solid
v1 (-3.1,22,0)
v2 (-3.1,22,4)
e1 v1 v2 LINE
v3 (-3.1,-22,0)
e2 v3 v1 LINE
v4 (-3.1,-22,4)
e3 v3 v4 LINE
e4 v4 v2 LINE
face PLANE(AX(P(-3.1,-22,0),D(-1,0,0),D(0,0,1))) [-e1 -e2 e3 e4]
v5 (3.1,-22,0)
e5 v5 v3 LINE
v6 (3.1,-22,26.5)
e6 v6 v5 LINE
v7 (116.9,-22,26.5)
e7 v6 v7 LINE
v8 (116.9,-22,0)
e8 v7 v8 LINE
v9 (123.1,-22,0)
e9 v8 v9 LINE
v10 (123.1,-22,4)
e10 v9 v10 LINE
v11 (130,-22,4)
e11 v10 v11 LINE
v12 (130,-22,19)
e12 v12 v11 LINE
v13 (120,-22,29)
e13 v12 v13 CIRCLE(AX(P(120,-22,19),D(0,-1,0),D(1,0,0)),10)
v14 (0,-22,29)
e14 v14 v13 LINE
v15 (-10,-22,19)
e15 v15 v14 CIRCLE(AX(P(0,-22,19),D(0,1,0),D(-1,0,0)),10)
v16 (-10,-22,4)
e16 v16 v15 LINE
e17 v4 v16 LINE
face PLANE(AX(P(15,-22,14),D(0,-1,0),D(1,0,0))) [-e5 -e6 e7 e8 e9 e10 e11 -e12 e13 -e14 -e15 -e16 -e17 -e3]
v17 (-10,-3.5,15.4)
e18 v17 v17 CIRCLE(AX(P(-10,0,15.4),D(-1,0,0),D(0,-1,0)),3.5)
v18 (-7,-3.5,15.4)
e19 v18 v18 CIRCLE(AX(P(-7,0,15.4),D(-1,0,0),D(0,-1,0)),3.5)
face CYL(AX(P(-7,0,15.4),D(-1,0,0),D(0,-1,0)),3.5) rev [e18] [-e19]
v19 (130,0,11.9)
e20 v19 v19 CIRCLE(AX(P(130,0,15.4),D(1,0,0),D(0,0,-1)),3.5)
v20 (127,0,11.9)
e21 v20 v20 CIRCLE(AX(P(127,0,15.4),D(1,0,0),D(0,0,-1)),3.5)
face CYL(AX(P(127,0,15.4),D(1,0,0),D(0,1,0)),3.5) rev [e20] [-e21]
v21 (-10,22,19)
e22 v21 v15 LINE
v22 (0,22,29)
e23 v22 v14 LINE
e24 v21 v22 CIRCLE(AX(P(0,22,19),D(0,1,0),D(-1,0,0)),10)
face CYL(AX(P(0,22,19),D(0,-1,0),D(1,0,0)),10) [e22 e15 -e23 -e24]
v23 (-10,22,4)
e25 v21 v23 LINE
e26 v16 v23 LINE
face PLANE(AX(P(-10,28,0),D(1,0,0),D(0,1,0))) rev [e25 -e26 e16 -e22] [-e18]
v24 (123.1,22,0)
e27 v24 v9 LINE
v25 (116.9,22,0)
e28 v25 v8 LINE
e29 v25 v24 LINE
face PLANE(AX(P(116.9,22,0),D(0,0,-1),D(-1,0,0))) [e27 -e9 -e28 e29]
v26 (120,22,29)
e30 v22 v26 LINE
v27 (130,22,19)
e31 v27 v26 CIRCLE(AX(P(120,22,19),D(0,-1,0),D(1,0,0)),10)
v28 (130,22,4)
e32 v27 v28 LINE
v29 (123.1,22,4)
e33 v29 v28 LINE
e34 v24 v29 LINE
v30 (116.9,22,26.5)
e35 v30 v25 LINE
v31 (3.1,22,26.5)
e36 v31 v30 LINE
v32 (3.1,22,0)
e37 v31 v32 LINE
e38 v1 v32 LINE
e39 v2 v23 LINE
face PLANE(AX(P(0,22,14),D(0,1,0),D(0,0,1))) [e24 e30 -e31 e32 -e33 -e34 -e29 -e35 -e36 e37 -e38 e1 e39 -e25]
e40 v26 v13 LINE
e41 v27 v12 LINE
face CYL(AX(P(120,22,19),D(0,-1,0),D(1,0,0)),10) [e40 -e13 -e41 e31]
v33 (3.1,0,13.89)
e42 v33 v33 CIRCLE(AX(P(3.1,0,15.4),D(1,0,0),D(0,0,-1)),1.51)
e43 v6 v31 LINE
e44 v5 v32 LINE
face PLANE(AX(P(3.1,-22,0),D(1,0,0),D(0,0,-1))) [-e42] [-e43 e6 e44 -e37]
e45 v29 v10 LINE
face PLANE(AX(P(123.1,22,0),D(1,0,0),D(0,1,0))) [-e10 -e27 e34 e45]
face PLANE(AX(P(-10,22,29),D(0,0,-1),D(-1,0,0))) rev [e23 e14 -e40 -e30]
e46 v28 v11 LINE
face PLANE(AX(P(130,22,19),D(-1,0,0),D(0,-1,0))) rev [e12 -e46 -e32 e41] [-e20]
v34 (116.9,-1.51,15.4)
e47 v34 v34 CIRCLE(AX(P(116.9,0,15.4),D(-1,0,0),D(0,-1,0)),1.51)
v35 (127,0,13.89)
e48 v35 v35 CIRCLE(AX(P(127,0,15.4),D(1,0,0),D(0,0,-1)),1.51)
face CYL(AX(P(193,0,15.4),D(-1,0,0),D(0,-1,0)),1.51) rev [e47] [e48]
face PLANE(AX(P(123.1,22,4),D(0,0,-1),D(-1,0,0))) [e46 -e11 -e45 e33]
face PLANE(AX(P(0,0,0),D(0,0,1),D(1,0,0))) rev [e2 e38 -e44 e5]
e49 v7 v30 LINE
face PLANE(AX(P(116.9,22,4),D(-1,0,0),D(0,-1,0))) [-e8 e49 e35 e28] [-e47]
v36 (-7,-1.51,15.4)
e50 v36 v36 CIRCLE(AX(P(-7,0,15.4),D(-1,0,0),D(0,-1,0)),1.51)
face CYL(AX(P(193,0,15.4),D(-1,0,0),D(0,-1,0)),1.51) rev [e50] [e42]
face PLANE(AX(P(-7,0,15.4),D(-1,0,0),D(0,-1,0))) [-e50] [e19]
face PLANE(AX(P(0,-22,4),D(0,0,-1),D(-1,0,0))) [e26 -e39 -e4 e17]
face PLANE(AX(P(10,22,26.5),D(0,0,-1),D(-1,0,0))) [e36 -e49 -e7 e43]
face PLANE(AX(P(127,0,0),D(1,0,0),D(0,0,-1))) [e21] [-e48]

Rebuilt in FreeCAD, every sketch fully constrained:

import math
import FreeCAD as App
import Part
import Sketcher
from FreeCAD import Vector
Q = App.Units.Quantity


def add_polygon(sketch, points):
    """Adds a closed chain of lines whose ends are joined by coincident constraints."""
    first, n = sketch.GeometryCount, len(points)
    for a, b in zip(points, points[1:] + points[:1]):
        sketch.addGeometry(Part.LineSegment(App.Vector(*a, 0), App.Vector(*b, 0)), False)
    for i in range(n):
        sketch.addConstraint(Sketcher.Constraint("Coincident", first + i, 2, first + (i + 1) % n, 1))

doc = App.newDocument("Part")
params = doc.addObject("Spreadsheet::Sheet", "Params")
for row, (alias, value) in enumerate([
    ("sketch1_width", "30 mm"),
    ("sketch1_height", "44 mm"),
    ("pad1_length", "14 mm"),
    ("sketch2_height", "14 mm"),
    ("sketch2_height2", "4 mm"),
    ("sketch2_width", "6.9 mm"),
    ("sketch2_width2", "11.9 mm"),
    ("pocket1_length", "44 mm"),
    ("sketch3_width", "6.2 mm"),
    ("pocket2_length", "4 mm"),
    ("sketch4_diameter", "8 mm"),
    ("pocket3_length", "5 mm"),
    ("sketch5_diameter", "5.2 mm"),
    ("pocket4_length", "5 mm"),
    ("sketch6_diameter", "8 mm"),
    ("pad2_length", "10 mm"),
    ("sketch7_height", "4 mm"),
    ("sketch7_width", "6.2 mm"),
    ("pad3_length", "40 mm"),
    ("sketch8_width", "5 mm"),
    ("sketch8_height", "10 mm"),
    ("pocket5_length", "50 mm"),
    ("sketch9_width", "20 mm"),
    ("sketch9_height", "25 mm"),
    ("pad4_length", "44 mm"),
    ("sketch10_radius", "10 mm"),
    ("pocket6_length", "44 mm"),
    ("sketch11_radius", "10 mm"),
    ("sketch11_width", "110 mm"),
    ("sketch11_width2", "100 mm"),
    ("sketch11_height", "4 mm"),
    ("sketch11_height2", "15 mm"),
    ("pad5_length", "44 mm"),
    ("sketch12_width", "6.9 mm"),
    ("sketch12_height", "22.5 mm"),
    ("pocket7_length", "50 mm"),
    ("sketch13_diameter", "7 mm"),
    ("pocket8_length", "3 mm"),
    ("sketch14_diameter", "7 mm"),
    ("pocket9_length", "3 mm"),
    ("sketch15_diameter", "3.02 mm"),
    ("pocket10_length", "200 mm"),
], start=1):
    params.set(f"A{row}", alias)
    params.set(f"B{row}", "=" + value)
    params.setAlias(f"B{row}", alias)

body = doc.addObject("PartDesign::Body", "Body")

# Sketch on XY plane
sketch1 = doc.addObject("Sketcher::SketchObject", "Sketch")
body.addObject(sketch1)
sketch1.AttachmentSupport = (doc.XY_Plane, [""])
sketch1.MapMode = "FlatFace"
add_polygon(sketch1, [(-15, 22), (-15, -22), (15, -22), (15, 22)])  # lines 0-3
sketch1.addConstraint([
    Sketcher.Constraint("Vertical", 0),
    Sketcher.Constraint("Horizontal", 1),
    Sketcher.Constraint("Vertical", 2),
    Sketcher.Constraint("Horizontal", 3),
    Sketcher.Constraint("Symmetric", 0, 2, 2, 2, -1, 1),
    Sketcher.Constraint("DistanceX", 1, 1, 1, 2, Q("30 mm")),
    Sketcher.Constraint("DistanceY", 0, 2, 0, 1, Q("44 mm")),
])
sketch1.setExpression("Constraints[9]", "Params.sketch1_width")
sketch1.setExpression("Constraints[10]", "Params.sketch1_height")
pad1 = doc.addObject("PartDesign::Pad", "Pad")
body.addObject(pad1)
pad1.Profile = sketch1
pad1.setExpression("Length", "Params.pad1_length")

# Sketch on XZ plane
sketch2 = doc.addObject("Sketcher::SketchObject", "Sketch001")
body.addObject(sketch2)
sketch2.AttachmentSupport = (doc.XZ_Plane, [""])
sketch2.MapMode = "FlatFace"
sketch2.AttachmentOffset = App.Placement(Vector(0, 0, -22), App.Rotation())
add_polygon(sketch2, [(-15, 0), (-15, 14), (-10, 4), (-3.1, 4), (-3.1, 0)])  # lines 0-4
add_polygon(sketch2, [(3.1, 4), (10, 4), (15, 14), (15, 0), (3.1, 0)])  # lines 5-9
sketch2.addConstraint([
    Sketcher.Constraint("Vertical", 0),
    Sketcher.Constraint("Horizontal", 2),
    Sketcher.Constraint("Vertical", 3),
    Sketcher.Constraint("Horizontal", 4),
    Sketcher.Constraint("Horizontal", 5),
    Sketcher.Constraint("Vertical", 7),
    Sketcher.Constraint("Horizontal", 8),
    Sketcher.Constraint("Vertical", 9),
    Sketcher.Constraint("Symmetric", 4, 2, 7, 2, -1, 1),
    Sketcher.Constraint("Symmetric", 1, 2, 5, 2, -2),
    Sketcher.Constraint("Symmetric", 3, 2, 8, 2, -2),
    Sketcher.Constraint("Horizontal", 0, 2, 6, 2),
    Sketcher.Constraint("DistanceY", 0, 1, 0, 2, Q("14 mm")),
    Sketcher.Constraint("DistanceY", 3, 2, 3, 1, Q("4 mm")),
    Sketcher.Constraint("DistanceX", 2, 1, 2, 2, Q("6.9 mm")),
    Sketcher.Constraint("DistanceX", 4, 2, 4, 1, Q("11.9 mm")),
    Sketcher.Constraint("DistanceX", 0, 2, -1, 1, Q("15 mm")),
])
sketch2.setExpression("Constraints[22]", "Params.sketch2_height")
sketch2.setExpression("Constraints[23]", "Params.sketch2_height2")
sketch2.setExpression("Constraints[24]", "Params.sketch2_width")
sketch2.setExpression("Constraints[25]", "Params.sketch2_width2")
pocket1 = doc.addObject("PartDesign::Pocket", "Pocket")
body.addObject(pocket1)
pocket1.Profile = sketch2
pocket1.setExpression("Length", "Params.pocket1_length")
pocket1.Reversed = True

# Sketch on XY plane
sketch3 = doc.addObject("Sketcher::SketchObject", "Sketch002")
body.addObject(sketch3)
sketch3.AttachmentSupport = (doc.XY_Plane, [""])
sketch3.MapMode = "FlatFace"
add_polygon(sketch3, [(3, 3), (3, -3), (-3, -3), (-3, 3)])  # lines 0-3
sketch3.addConstraint([
    Sketcher.Constraint("Vertical", 0),
    Sketcher.Constraint("Horizontal", 1),
    Sketcher.Constraint("Vertical", 2),
    Sketcher.Constraint("Horizontal", 3),
    Sketcher.Constraint("Symmetric", 0, 2, 2, 2, -1, 1),
    Sketcher.Constraint("Equal", 3, 0),
    Sketcher.Constraint("DistanceX", 1, 2, 1, 1, Q("6.2 mm")),
])
sketch3.setExpression("Constraints[10]", "Params.sketch3_width")
pocket2 = doc.addObject("PartDesign::Pocket", "Pocket001")
body.addObject(pocket2)
pocket2.Profile = sketch3
pocket2.setExpression("Length", "Params.pocket2_length")
pocket2.Reversed = True

# Sketch on XY plane
sketch4 = doc.addObject("Sketcher::SketchObject", "Sketch003")
body.addObject(sketch4)
sketch4.AttachmentSupport = (doc.XY_Plane, [""])
sketch4.MapMode = "FlatFace"
sketch4.AttachmentOffset = App.Placement(Vector(0, 0, 14), App.Rotation())
sketch4.addGeometry(Part.Circle(Vector(0, 0, 0), Vector(0, 0, 1), 4), False)
sketch4.addConstraint([
    Sketcher.Constraint("Coincident", 0, 3, -1, 1),
    Sketcher.Constraint("Diameter", 0, Q("8 mm")),
])
sketch4.setExpression("Constraints[1]", "Params.sketch4_diameter")
pocket3 = doc.addObject("PartDesign::Pocket", "Pocket002")
body.addObject(pocket3)
pocket3.Profile = sketch4
pocket3.setExpression("Length", "Params.pocket3_length")

# Sketch on XY plane
sketch5 = doc.addObject("Sketcher::SketchObject", "Sketch004")
body.addObject(sketch5)
sketch5.AttachmentSupport = (doc.XY_Plane, [""])
sketch5.MapMode = "FlatFace"
sketch5.AttachmentOffset = App.Placement(Vector(0, 0, 9), App.Rotation())
sketch5.addGeometry(Part.Circle(Vector(0, 0, 0), Vector(0, 0, 1), 2.6), False)
sketch5.addConstraint([
    Sketcher.Constraint("Coincident", 0, 3, -1, 1),
    Sketcher.Constraint("Diameter", 0, Q("5.2 mm")),
])
sketch5.setExpression("Constraints[1]", "Params.sketch5_diameter")
pocket4 = doc.addObject("PartDesign::Pocket", "Pocket003")
body.addObject(pocket4)
pocket4.Profile = sketch5
pocket4.setExpression("Length", "Params.pocket4_length")

# Sketch on XY plane
sketch6 = doc.addObject("Sketcher::SketchObject", "Sketch005")
body.addObject(sketch6)
sketch6.AttachmentSupport = (doc.XY_Plane, [""])
sketch6.MapMode = "FlatFace"
sketch6.AttachmentOffset = App.Placement(Vector(0, 0, 14), App.Rotation())
sketch6.addGeometry(Part.Circle(Vector(0, 0, 0), Vector(0, 0, 1), 4), False)
sketch6.addConstraint([
    Sketcher.Constraint("Coincident", 0, 3, -1, 1),
    Sketcher.Constraint("Diameter", 0, Q("8 mm")),
])
sketch6.setExpression("Constraints[1]", "Params.sketch6_diameter")
pad2 = doc.addObject("PartDesign::Pad", "Pad001")
body.addObject(pad2)
pad2.Profile = sketch6
pad2.setExpression("Length", "Params.pad2_length")
pad2.Reversed = True

# Sketch on XZ plane
sketch7 = doc.addObject("Sketcher::SketchObject", "Sketch006")
body.addObject(sketch7)
sketch7.AttachmentSupport = (doc.XZ_Plane, [""])
sketch7.MapMode = "FlatFace"
sketch7.AttachmentOffset = App.Placement(Vector(0, 0, 22), App.Rotation())
add_polygon(sketch7, [(3.1, 0), (3.1, 4), (-3.1, 4), (-3.1, 0)])  # lines 0-3
sketch7.addConstraint([
    Sketcher.Constraint("Vertical", 0),
    Sketcher.Constraint("Horizontal", 1),
    Sketcher.Constraint("Vertical", 2),
    Sketcher.Constraint("Horizontal", 3),
    Sketcher.Constraint("Symmetric", 2, 2, 3, 2, -1, 1),
    Sketcher.Constraint("DistanceY", 0, 1, 0, 2, Q("4 mm")),
    Sketcher.Constraint("DistanceX", 1, 2, 1, 1, Q("6.2 mm")),
])
sketch7.setExpression("Constraints[9]", "Params.sketch7_height")
sketch7.setExpression("Constraints[10]", "Params.sketch7_width")
pad3 = doc.addObject("PartDesign::Pad", "Pad002")
body.addObject(pad3)
pad3.Profile = sketch7
pad3.setExpression("Length", "Params.pad3_length")
pad3.Reversed = True

# Sketch on XZ plane
sketch8 = doc.addObject("Sketcher::SketchObject", "Sketch007")
body.addObject(sketch8)
sketch8.AttachmentSupport = (doc.XZ_Plane, [""])
sketch8.MapMode = "FlatFace"
sketch8.AttachmentOffset = App.Placement(Vector(0, 0, 22), App.Rotation())
add_polygon(sketch8, [(-15, 14), (-10, 4), (-10, 14)])  # lines 0-2
add_polygon(sketch8, [(15, 14), (10, 14), (10, 4)])  # lines 3-5
sketch8.addConstraint([
    Sketcher.Constraint("Vertical", 1),
    Sketcher.Constraint("Horizontal", 2),
    Sketcher.Constraint("Horizontal", 3),
    Sketcher.Constraint("Vertical", 4),
    Sketcher.Constraint("Symmetric", 1, 2, 3, 2, -2),
    Sketcher.Constraint("Horizontal", 0, 2, 4, 2),
    Sketcher.Constraint("Equal", 2, 3),
    Sketcher.Constraint("DistanceX", 2, 2, 2, 1, Q("5 mm")),
    Sketcher.Constraint("DistanceY", 1, 1, 1, 2, Q("10 mm")),
    Sketcher.Constraint("DistanceX", 0, 2, -1, 1, Q("10 mm")),
    Sketcher.Constraint("DistanceY", -1, 1, 0, 2, Q("4 mm")),
])
sketch8.setExpression("Constraints[13]", "Params.sketch8_width")
sketch8.setExpression("Constraints[14]", "Params.sketch8_height")
pocket5 = doc.addObject("PartDesign::Pocket", "Pocket004")
body.addObject(pocket5)
pocket5.Profile = sketch8
pocket5.setExpression("Length", "Params.pocket5_length")

# Sketch on XZ plane
sketch9 = doc.addObject("Sketcher::SketchObject", "Sketch008")
body.addObject(sketch9)
sketch9.AttachmentSupport = (doc.XZ_Plane, [""])
sketch9.MapMode = "FlatFace"
sketch9.AttachmentOffset = App.Placement(Vector(0, 0, 22), App.Rotation())
add_polygon(sketch9, [(-10, 29), (-10, 4), (10, 4), (10, 29)])  # lines 0-3
sketch9.addConstraint([
    Sketcher.Constraint("Vertical", 0),
    Sketcher.Constraint("Horizontal", 1),
    Sketcher.Constraint("Vertical", 2),
    Sketcher.Constraint("Horizontal", 3),
    Sketcher.Constraint("DistanceX", 1, 1, 1, 2, Q("20 mm")),
    Sketcher.Constraint("DistanceY", 0, 2, 0, 1, Q("25 mm")),
    Sketcher.Constraint("DistanceX", 0, 2, -1, 1, Q("10 mm")),
    Sketcher.Constraint("DistanceY", -1, 1, 0, 2, Q("4 mm")),
])
sketch9.setExpression("Constraints[8]", "Params.sketch9_width")
sketch9.setExpression("Constraints[9]", "Params.sketch9_height")
pad4 = doc.addObject("PartDesign::Pad", "Pad003")
body.addObject(pad4)
pad4.Profile = sketch9
pad4.setExpression("Length", "Params.pad4_length")
pad4.Reversed = True

# Sketch on XZ plane
sketch10 = doc.addObject("Sketcher::SketchObject", "Sketch009")
body.addObject(sketch10)
sketch10.AttachmentSupport = (doc.XZ_Plane, [""])
sketch10.MapMode = "FlatFace"
sketch10.AttachmentOffset = App.Placement(Vector(0, 0, 22), App.Rotation())
sketch10.addGeometry([
    Part.LineSegment(Vector(-10, 29, 0), Vector(-10, 19, 0)),
    Part.ArcOfCircle(Part.Circle(Vector(0, 19, 0), Vector(0, 0, 1), 10), math.radians(90), math.radians(180)),
    Part.LineSegment(Vector(0, 29, 0), Vector(-10, 29, 0)),
], False)
sketch10.addConstraint([
    Sketcher.Constraint("Tangent", 0, 2, 1, 2),
    Sketcher.Constraint("Tangent", 1, 1, 2, 1),
    Sketcher.Constraint("Coincident", 2, 2, 0, 1),
    Sketcher.Constraint("Vertical", 0),
    Sketcher.Constraint("Horizontal", 2),
    Sketcher.Constraint("PointOnObject", 1, 3, -2),
    Sketcher.Constraint("Radius", 1, Q("10 mm")),
    Sketcher.Constraint("DistanceY", -1, 1, 1, 3, Q("19 mm")),
])
sketch10.setExpression("Constraints[6]", "Params.sketch10_radius")
pocket6 = doc.addObject("PartDesign::Pocket", "Pocket005")
body.addObject(pocket6)
pocket6.Profile = sketch10
pocket6.setExpression("Length", "Params.pocket6_length")

# Sketch on XZ plane
sketch11 = doc.addObject("Sketcher::SketchObject", "Sketch010")
body.addObject(sketch11)
sketch11.AttachmentSupport = (doc.XZ_Plane, [""])
sketch11.MapMode = "FlatFace"
sketch11.AttachmentOffset = App.Placement(Vector(0, 0, 22), App.Rotation())
sketch11.addGeometry([
    Part.LineSegment(Vector(123.1, 0, 0), Vector(123.1, 4, 0)),  # 0
    Part.LineSegment(Vector(123.1, 4, 0), Vector(130, 4, 0)),  # 1
    Part.LineSegment(Vector(130, 4, 0), Vector(130, 19, 0)),  # 2
    Part.ArcOfCircle(Part.Circle(Vector(120, 19, 0), Vector(0, 0, 1), 10), math.radians(0), math.radians(90)),  # 3
    Part.LineSegment(Vector(120, 29, 0), Vector(10, 29, 0)),  # 4
    Part.LineSegment(Vector(10, 29, 0), Vector(10, 26.5, 0)),  # 5
    Part.LineSegment(Vector(10, 26.5, 0), Vector(110, 26.5, 0)),  # 6
    Part.LineSegment(Vector(110, 26.5, 0), Vector(110, 4, 0)),  # 7
    Part.LineSegment(Vector(110, 4, 0), Vector(116.9, 4, 0)),  # 8
    Part.LineSegment(Vector(116.9, 4, 0), Vector(116.9, 0, 0)),  # 9
    Part.LineSegment(Vector(116.9, 0, 0), Vector(123.1, 0, 0)),  # 10
], False)
sketch11.addConstraint([
    Sketcher.Constraint("Coincident", 0, 2, 1, 1),
    Sketcher.Constraint("Coincident", 1, 2, 2, 1),
    Sketcher.Constraint("Tangent", 2, 2, 3, 1),
    Sketcher.Constraint("Tangent", 3, 2, 4, 1),
    Sketcher.Constraint("Coincident", 4, 2, 5, 1),
    Sketcher.Constraint("Coincident", 5, 2, 6, 1),
    Sketcher.Constraint("Coincident", 6, 2, 7, 1),
    Sketcher.Constraint("Coincident", 7, 2, 8, 1),
    Sketcher.Constraint("Coincident", 8, 2, 9, 1),
    Sketcher.Constraint("Coincident", 9, 2, 10, 1),
    Sketcher.Constraint("Coincident", 10, 2, 0, 1),
    Sketcher.Constraint("Vertical", 0),
    Sketcher.Constraint("Horizontal", 1),
    Sketcher.Constraint("Vertical", 2),
    Sketcher.Constraint("Horizontal", 4),
    Sketcher.Constraint("Vertical", 5),
    Sketcher.Constraint("Horizontal", 6),
    Sketcher.Constraint("Vertical", 7),
    Sketcher.Constraint("Horizontal", 8),
    Sketcher.Constraint("Vertical", 9),
    Sketcher.Constraint("Horizontal", 10),
    Sketcher.Constraint("PointOnObject", 9, 2, -1),
    Sketcher.Constraint("Horizontal", 1, 2, 7, 2),
    Sketcher.Constraint("Equal", 1, 8),
    Sketcher.Constraint("Radius", 3, Q("10 mm")),
    Sketcher.Constraint("DistanceX", 4, 2, 4, 1, Q("110 mm")),
    Sketcher.Constraint("DistanceX", 6, 1, 6, 2, Q("100 mm")),
    Sketcher.Constraint("DistanceY", 0, 1, 0, 2, Q("4 mm")),
    Sketcher.Constraint("DistanceY", 2, 1, 2, 2, Q("15 mm")),
    Sketcher.Constraint("DistanceX", 1, 1, 1, 2, Q("6.9 mm")),
    Sketcher.Constraint("DistanceY", 5, 2, 5, 1, Q("2.5 mm")),
    Sketcher.Constraint("DistanceX", -1, 1, 3, 3, Q("120 mm")),
])
sketch11.setExpression("Constraints[24]", "Params.sketch11_radius")
sketch11.setExpression("Constraints[25]", "Params.sketch11_width")
sketch11.setExpression("Constraints[26]", "Params.sketch11_width2")
sketch11.setExpression("Constraints[27]", "Params.sketch11_height")
sketch11.setExpression("Constraints[28]", "Params.sketch11_height2")
pad5 = doc.addObject("PartDesign::Pad", "Pad004")
body.addObject(pad5)
pad5.Profile = sketch11
pad5.setExpression("Length", "Params.pad5_length")
pad5.Reversed = True

# Sketch on XZ plane
sketch12 = doc.addObject("Sketcher::SketchObject", "Sketch011")
body.addObject(sketch12)
sketch12.AttachmentSupport = (doc.XZ_Plane, [""])
sketch12.MapMode = "FlatFace"
sketch12.AttachmentOffset = App.Placement(Vector(0, 0, -22), App.Rotation())
add_polygon(sketch12, [(3, 4), (3, 26), (10, 26), (10, 4)])  # lines 0-3
add_polygon(sketch12, [(110, 4), (110, 26), (117, 26), (117, 4)])  # lines 4-7
sketch12.addConstraint([
    Sketcher.Constraint("Vertical", 0),
    Sketcher.Constraint("Horizontal", 1),
    Sketcher.Constraint("Vertical", 2),
    Sketcher.Constraint("Horizontal", 3),
    Sketcher.Constraint("Vertical", 4),
    Sketcher.Constraint("Horizontal", 5),
    Sketcher.Constraint("Vertical", 6),
    Sketcher.Constraint("Horizontal", 7),
    Sketcher.Constraint("Horizontal", 1, 2, 4, 2),
    Sketcher.Constraint("Horizontal", 3, 2, 6, 2),
    Sketcher.Constraint("Equal", 3, 5),
    Sketcher.Constraint("DistanceX", 1, 1, 1, 2, Q("6.9 mm")),
    Sketcher.Constraint("DistanceY", 0, 1, 0, 2, Q("22.5 mm")),
    Sketcher.Constraint("DistanceX", -1, 1, 1, 2, Q("10 mm")),
    Sketcher.Constraint("DistanceY", -1, 1, 2, 2, Q("4 mm")),
    Sketcher.Constraint("DistanceX", -1, 1, 4, 2, Q("110 mm")),
])
sketch12.setExpression("Constraints[19]", "Params.sketch12_width")
sketch12.setExpression("Constraints[20]", "Params.sketch12_height")
pocket7 = doc.addObject("PartDesign::Pocket", "Pocket006")
body.addObject(pocket7)
pocket7.Profile = sketch12
pocket7.setExpression("Length", "Params.pocket7_length")
pocket7.Reversed = True

# Sketch on YZ plane
sketch13 = doc.addObject("Sketcher::SketchObject", "Sketch012")
body.addObject(sketch13)
sketch13.AttachmentSupport = (doc.YZ_Plane, [""])
sketch13.MapMode = "FlatFace"
sketch13.AttachmentOffset = App.Placement(Vector(0, 0, 130), App.Rotation())
sketch13.addGeometry(Part.Circle(Vector(0, 15.4, 0), Vector(0, 0, 1), 3.5), False)
sketch13.addConstraint([
    Sketcher.Constraint("PointOnObject", 0, 3, -2),
    Sketcher.Constraint("Diameter", 0, Q("7 mm")),
    Sketcher.Constraint("DistanceY", -1, 1, 0, 3, Q("15.4 mm")),
])
sketch13.setExpression("Constraints[1]", "Params.sketch13_diameter")
pocket8 = doc.addObject("PartDesign::Pocket", "Pocket007")
body.addObject(pocket8)
pocket8.Profile = sketch13
pocket8.setExpression("Length", "Params.pocket8_length")

# Sketch on YZ plane
sketch14 = doc.addObject("Sketcher::SketchObject", "Sketch013")
body.addObject(sketch14)
sketch14.AttachmentSupport = (doc.YZ_Plane, [""])
sketch14.MapMode = "FlatFace"
sketch14.AttachmentOffset = App.Placement(Vector(0, 0, -7), App.Rotation())
sketch14.addGeometry(Part.Circle(Vector(0, 15.4, 0), Vector(0, 0, 1), 3.5), False)
sketch14.addConstraint([
    Sketcher.Constraint("PointOnObject", 0, 3, -2),
    Sketcher.Constraint("Diameter", 0, Q("7 mm")),
    Sketcher.Constraint("DistanceY", -1, 1, 0, 3, Q("15.4 mm")),
])
sketch14.setExpression("Constraints[1]", "Params.sketch14_diameter")
pocket9 = doc.addObject("PartDesign::Pocket", "Pocket008")
body.addObject(pocket9)
pocket9.Profile = sketch14
pocket9.setExpression("Length", "Params.pocket9_length")

# Sketch on YZ plane
sketch15 = doc.addObject("Sketcher::SketchObject", "Sketch014")
body.addObject(sketch15)
sketch15.AttachmentSupport = (doc.YZ_Plane, [""])
sketch15.MapMode = "FlatFace"
sketch15.AttachmentOffset = App.Placement(Vector(0, 0, -7), App.Rotation())
sketch15.addGeometry(Part.Circle(Vector(0, 15.4, 0), Vector(0, 0, 1), 1.5), False)
sketch15.addConstraint([
    Sketcher.Constraint("PointOnObject", 0, 3, -2),
    Sketcher.Constraint("Diameter", 0, Q("3.02 mm")),
    Sketcher.Constraint("DistanceY", -1, 1, 0, 3, Q("15.4 mm")),
])
sketch15.setExpression("Constraints[1]", "Params.sketch15_diameter")
pocket10 = doc.addObject("PartDesign::Pocket", "Pocket009")
body.addObject(pocket10)
pocket10.Profile = sketch15
pocket10.setExpression("Length", "Params.pocket10_length")
pocket10.Reversed = True

doc.recompute()
